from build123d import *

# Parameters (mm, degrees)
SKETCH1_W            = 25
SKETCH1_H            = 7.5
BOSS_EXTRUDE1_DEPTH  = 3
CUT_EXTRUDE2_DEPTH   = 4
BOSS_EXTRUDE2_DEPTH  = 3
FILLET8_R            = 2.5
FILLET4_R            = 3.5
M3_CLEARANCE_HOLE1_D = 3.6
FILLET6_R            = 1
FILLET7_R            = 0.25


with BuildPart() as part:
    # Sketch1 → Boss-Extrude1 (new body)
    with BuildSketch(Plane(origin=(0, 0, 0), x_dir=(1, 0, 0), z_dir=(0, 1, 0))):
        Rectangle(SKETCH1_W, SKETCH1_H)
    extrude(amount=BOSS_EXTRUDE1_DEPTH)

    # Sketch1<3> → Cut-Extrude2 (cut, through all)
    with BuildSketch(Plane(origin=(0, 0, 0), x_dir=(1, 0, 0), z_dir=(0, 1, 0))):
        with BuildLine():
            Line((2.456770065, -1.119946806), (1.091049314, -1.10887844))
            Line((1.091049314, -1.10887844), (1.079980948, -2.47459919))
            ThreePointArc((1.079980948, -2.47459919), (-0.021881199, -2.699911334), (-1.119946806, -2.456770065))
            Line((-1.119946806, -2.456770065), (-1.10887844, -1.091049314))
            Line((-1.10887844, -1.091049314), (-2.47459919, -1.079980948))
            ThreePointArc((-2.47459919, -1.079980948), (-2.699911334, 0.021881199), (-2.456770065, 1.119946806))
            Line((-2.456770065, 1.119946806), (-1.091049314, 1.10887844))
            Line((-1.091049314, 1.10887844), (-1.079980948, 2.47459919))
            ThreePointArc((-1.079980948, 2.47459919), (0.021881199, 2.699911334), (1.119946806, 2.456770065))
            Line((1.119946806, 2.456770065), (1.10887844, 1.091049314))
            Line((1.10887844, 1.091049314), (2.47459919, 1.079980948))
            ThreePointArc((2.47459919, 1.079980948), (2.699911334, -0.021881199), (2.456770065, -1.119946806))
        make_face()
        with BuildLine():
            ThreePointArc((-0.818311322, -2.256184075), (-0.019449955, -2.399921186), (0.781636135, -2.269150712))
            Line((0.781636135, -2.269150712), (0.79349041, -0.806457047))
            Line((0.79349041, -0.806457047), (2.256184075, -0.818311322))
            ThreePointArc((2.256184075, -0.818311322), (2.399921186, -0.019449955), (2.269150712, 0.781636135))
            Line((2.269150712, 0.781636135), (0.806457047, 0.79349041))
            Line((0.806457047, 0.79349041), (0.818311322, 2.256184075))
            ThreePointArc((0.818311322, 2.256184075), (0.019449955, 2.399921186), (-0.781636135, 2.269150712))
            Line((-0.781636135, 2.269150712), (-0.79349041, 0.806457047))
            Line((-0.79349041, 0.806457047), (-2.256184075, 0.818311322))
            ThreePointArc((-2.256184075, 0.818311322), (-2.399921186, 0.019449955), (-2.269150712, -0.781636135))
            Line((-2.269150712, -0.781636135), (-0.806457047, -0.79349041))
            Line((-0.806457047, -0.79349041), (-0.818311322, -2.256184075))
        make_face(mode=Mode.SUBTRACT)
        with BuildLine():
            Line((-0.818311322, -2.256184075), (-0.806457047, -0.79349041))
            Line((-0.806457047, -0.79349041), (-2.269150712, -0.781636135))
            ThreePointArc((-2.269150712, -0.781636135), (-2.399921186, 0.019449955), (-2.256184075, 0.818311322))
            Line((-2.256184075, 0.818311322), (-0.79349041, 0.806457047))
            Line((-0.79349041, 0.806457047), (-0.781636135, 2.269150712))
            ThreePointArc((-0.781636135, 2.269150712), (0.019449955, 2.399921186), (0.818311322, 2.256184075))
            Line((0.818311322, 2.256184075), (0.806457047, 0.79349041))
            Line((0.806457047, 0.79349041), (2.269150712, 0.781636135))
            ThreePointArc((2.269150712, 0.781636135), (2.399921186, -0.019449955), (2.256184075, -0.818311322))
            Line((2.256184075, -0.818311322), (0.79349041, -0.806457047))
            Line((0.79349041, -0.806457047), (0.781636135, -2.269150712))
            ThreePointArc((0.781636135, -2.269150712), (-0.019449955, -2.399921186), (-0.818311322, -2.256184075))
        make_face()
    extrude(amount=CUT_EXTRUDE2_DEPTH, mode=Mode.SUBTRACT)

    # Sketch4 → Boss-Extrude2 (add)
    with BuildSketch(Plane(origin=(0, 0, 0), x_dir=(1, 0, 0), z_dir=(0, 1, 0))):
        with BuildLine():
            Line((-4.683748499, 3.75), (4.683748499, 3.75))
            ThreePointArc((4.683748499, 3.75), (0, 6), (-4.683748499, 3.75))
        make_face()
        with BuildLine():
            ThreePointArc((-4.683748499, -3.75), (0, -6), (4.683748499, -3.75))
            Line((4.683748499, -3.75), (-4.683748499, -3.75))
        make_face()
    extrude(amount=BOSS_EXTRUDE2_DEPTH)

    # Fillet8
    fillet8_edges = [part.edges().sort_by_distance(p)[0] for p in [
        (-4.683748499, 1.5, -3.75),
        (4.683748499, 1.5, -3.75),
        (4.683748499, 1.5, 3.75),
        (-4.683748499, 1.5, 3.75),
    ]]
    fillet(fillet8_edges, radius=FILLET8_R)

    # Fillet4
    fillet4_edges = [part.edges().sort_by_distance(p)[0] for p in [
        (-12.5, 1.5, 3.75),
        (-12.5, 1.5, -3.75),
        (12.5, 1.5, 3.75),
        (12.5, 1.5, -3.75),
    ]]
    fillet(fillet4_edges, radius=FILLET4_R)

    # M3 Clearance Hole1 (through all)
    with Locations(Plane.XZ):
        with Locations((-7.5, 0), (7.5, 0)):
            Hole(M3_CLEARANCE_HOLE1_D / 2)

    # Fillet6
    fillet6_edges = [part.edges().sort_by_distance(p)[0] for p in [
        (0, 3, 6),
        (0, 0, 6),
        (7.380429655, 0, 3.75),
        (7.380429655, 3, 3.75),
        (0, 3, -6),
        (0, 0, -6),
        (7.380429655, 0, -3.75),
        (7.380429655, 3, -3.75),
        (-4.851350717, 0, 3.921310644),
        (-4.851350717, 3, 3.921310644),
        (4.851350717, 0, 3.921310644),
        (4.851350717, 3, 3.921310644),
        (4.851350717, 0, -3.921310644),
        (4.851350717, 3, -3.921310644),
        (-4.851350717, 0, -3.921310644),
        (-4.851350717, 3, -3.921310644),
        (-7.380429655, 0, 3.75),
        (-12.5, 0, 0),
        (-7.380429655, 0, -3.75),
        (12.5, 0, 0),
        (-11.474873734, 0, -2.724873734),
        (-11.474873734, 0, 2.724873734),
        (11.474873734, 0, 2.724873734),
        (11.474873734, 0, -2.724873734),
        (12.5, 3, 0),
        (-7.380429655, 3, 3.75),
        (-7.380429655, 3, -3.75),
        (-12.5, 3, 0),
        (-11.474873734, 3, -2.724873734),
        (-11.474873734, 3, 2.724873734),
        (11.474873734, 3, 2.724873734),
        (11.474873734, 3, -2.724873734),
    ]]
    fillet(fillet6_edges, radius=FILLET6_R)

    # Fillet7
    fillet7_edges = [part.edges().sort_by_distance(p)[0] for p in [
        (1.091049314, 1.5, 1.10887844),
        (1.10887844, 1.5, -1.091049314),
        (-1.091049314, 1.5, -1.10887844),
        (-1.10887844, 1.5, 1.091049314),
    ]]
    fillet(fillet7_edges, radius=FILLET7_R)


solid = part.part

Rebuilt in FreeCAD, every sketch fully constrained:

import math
import FreeCAD as App
import Part
import Sketcher


def edges_at(feature, points):
    """Names of the edges that pass closest to the given points."""
    edges = feature.Shape.Edges
    near = lambda p: min(range(len(edges)), key=lambda i: edges[i].distToShape(Part.Vertex(*p))[0])
    return sorted({f"Edge{near(p) + 1}" for p in points})


def add_polygon(sketch, points):
    """Adds a closed chain of lines whose ends are joined by coincident constraints."""
    first, n = sketch.GeometryCount, len(points)
    for a, b in zip(points, points[1:] + points[:1]):
        sketch.addGeometry(Part.LineSegment(App.Vector(*a, 0), App.Vector(*b, 0)), False)
    for i in range(n):
        sketch.addConstraint(Sketcher.Constraint("Coincident", first + i, 2, first + (i + 1) % n, 1))

doc = App.newDocument("Part")
body = doc.addObject("PartDesign::Body", "Body")

sketch1 = body.newObject("Sketcher::SketchObject", "Sketch")
sketch1.AttachmentSupport = (doc.getObject("XZ_Plane"), [""])
sketch1.MapMode = "FlatFace"
add_polygon(sketch1, [(-12.5, -3.75), (-12.5, 3.75), (12.5, 3.75), (12.5, -3.75)])
sketch1.addConstraint([
    Sketcher.Constraint("Vertical", 0),
    Sketcher.Constraint("Horizontal", 1),
    Sketcher.Constraint("Vertical", 2),
    Sketcher.Constraint("Horizontal", 3),
    Sketcher.Constraint("Symmetric", 0, 2, 2, 2, -1, 1),
    Sketcher.Constraint("DistanceX", 1, 1, 1, 2, 25.0),
    Sketcher.Constraint("DistanceY", 0, 1, 0, 2, 7.5),
])
pad1 = body.newObject("PartDesign::Pad", "Pad")
pad1.Profile = sketch1
pad1.Length = 3
pad1.Reversed = True

sketch2 = body.newObject("Sketcher::SketchObject", "Sketch001")
sketch2.AttachmentSupport = (doc.getObject("XZ_Plane"), [""])
sketch2.MapMode = "FlatFace"
sketch2.addGeometry([
    Part.LineSegment(App.Vector(1.091049, 1.108878, 0), App.Vector(2.45677, 1.119947, 0)),
    Part.ArcOfCircle(Part.Circle(App.Vector(0, 0, 0), App.Vector(0, 0, 1), 2.7), math.radians(-23.577737), math.radians(24.506414)),
    Part.LineSegment(App.Vector(2.474599, -1.079981, 0), App.Vector(1.108878, -1.091049, 0)),
    Part.LineSegment(App.Vector(1.108878, -1.091049, 0), App.Vector(1.119947, -2.45677, 0)),
    Part.ArcOfCircle(Part.Circle(App.Vector(0, 0, 0), App.Vector(0, 0, 1), 2.7), math.radians(-113.577737), math.radians(-65.493586)),
    Part.LineSegment(App.Vector(-1.079981, -2.474599, 0), App.Vector(-1.091049, -1.108878, 0)),
    Part.LineSegment(App.Vector(-1.091049, -1.108878, 0), App.Vector(-2.45677, -1.119947, 0)),
    Part.ArcOfCircle(Part.Circle(App.Vector(0, 0, 0), App.Vector(0, 0, 1), 2.7), math.radians(156.422263), math.radians(204.506414)),
    Part.LineSegment(App.Vector(-2.474599, 1.079981, 0), App.Vector(-1.108878, 1.091049, 0)),
    Part.LineSegment(App.Vector(-1.108878, 1.091049, 0), App.Vector(-1.119947, 2.45677, 0)),
    Part.ArcOfCircle(Part.Circle(App.Vector(0, 0, 0), App.Vector(0, 0, 1), 2.7), math.radians(66.422263), math.radians(114.506414)),
    Part.LineSegment(App.Vector(1.079981, 2.474599, 0), App.Vector(1.091049, 1.108878, 0)),
], False)
sketch2.addConstraint([
    Sketcher.Constraint("Coincident", 0, 2, 1, 2),
    Sketcher.Constraint("Coincident", 1, 1, 2, 1),
    Sketcher.Constraint("Coincident", 2, 2, 3, 1),
    Sketcher.Constraint("Coincident", 3, 2, 4, 2),
    Sketcher.Constraint("Coincident", 4, 1, 5, 1),
    Sketcher.Constraint("Coincident", 5, 2, 6, 1),
    Sketcher.Constraint("Coincident", 6, 2, 7, 2),
    Sketcher.Constraint("Coincident", 7, 1, 8, 1),
    Sketcher.Constraint("Coincident", 8, 2, 9, 1),
    Sketcher.Constraint("Coincident", 9, 2, 10, 2),
    Sketcher.Constraint("Coincident", 10, 1, 11, 1),
    Sketcher.Constraint("Coincident", 11, 2, 0, 1),
    Sketcher.Constraint("Coincident", 1, 3, -1, 1),
    Sketcher.Constraint("Coincident", 4, 3, -1, 1),
    Sketcher.Constraint("Coincident", 7, 3, -1, 1),
    Sketcher.Constraint("Coincident", 10, 3, -1, 1),
    Sketcher.Constraint("Equal", 1, 4),
    Sketcher.Constraint("Equal", 4, 7),
    Sketcher.Constraint("Equal", 7, 10),
    Sketcher.Constraint("Symmetric", 2, 2, 8, 2, -1, 1),
    Sketcher.Constraint("Symmetric", 5, 2, 11, 2, -1, 1),
    Sketcher.Constraint("Parallel", 0, 2),
    Sketcher.Constraint("Perpendicular", 2, 3),
    Sketcher.Constraint("Parallel", 3, 5),
    Sketcher.Constraint("Perpendicular", 5, 6),
    Sketcher.Constraint("Parallel", 6, 8),
    Sketcher.Constraint("Perpendicular", 8, 9),
    Sketcher.Constraint("Parallel", 9, 11),
    Sketcher.Constraint("Equal", 0, 2),
    Sketcher.Constraint("Equal", 2, 3),
    Sketcher.Constraint("Equal", 3, 5),
    Sketcher.Constraint("Radius", 1, 2.7),
    Sketcher.Constraint("DistanceX", -1, 1, 1, 1, 2.474599),
    Sketcher.Constraint("DistanceX", -1, 1, 0, 2, 2.45677),
])
pocket1 = body.newObject("PartDesign::Pocket", "Pocket")
pocket1.Profile = sketch2
pocket1.Type = "ThroughAll"

sketch3 = body.newObject("Sketcher::SketchObject", "Sketch002")
sketch3.AttachmentSupport = (doc.getObject("XZ_Plane"), [""])
sketch3.MapMode = "FlatFace"
sketch3.addGeometry([
    Part.LineSegment(App.Vector(-4.683748, -3.75, 0), App.Vector(4.683748, -3.75, 0)),
    Part.ArcOfCircle(Part.Circle(App.Vector(0, 0, 0), App.Vector(0, 0, 1), 6), math.radians(-141.317813), math.radians(-38.682187)),
    Part.ArcOfCircle(Part.Circle(App.Vector(0, 0, 0), App.Vector(0, 0, 1), 6), math.radians(38.682187), math.radians(141.317813)),
    Part.LineSegment(App.Vector(4.683748, 3.75, 0), App.Vector(-4.683748, 3.75, 0)),
], False)
sketch3.addConstraint([
    Sketcher.Constraint("Coincident", 0, 1, 1, 1),
    Sketcher.Constraint("Coincident", 1, 2, 0, 2),
    Sketcher.Constraint("Coincident", 2, 1, 3, 1),
    Sketcher.Constraint("Coincident", 3, 2, 2, 2),
    Sketcher.Constraint("Horizontal", 0),
    Sketcher.Constraint("Horizontal", 3),
    Sketcher.Constraint("Coincident", 1, 3, -1, 1),
    Sketcher.Constraint("Coincident", 2, 3, -1, 1),
    Sketcher.Constraint("Equal", 1, 2),
    Sketcher.Constraint("Vertical", 1, 2, 2, 1),
    Sketcher.Constraint("Radius", 1, 6.0),
    Sketcher.Constraint("DistanceY", 1, 2, 2, 1, 7.5),
])
pad2 = body.newObject("PartDesign::Pad", "Pad001")
pad2.Profile = sketch3
pad2.Length = 3
pad2.Reversed = True
doc.recompute()

fillet = body.newObject("PartDesign::Fillet", "Fillet")
fillet.Base = (pad2, edges_at(pad2, [
    (-4.684, 1.5, -3.75),
    (4.684, 1.5, -3.75),
    (4.684, 1.5, 3.75),
    (-4.684, 1.5, 3.75),
]))
fillet.Radius = 2.5
doc.recompute()

fillet2 = body.newObject("PartDesign::Fillet", "Fillet001")
fillet2.Base = (fillet, edges_at(fillet, [
    (-12.5, 1.5, 3.75),
    (-12.5, 1.5, -3.75),
    (12.5, 1.5, 3.75),
    (12.5, 1.5, -3.75),
]))
fillet2.Radius = 3.5

sketch4 = body.newObject("Sketcher::SketchObject", "Sketch003")
sketch4.AttachmentSupport = (doc.getObject("XZ_Plane"), [""])
sketch4.MapMode = "FlatFace"
sketch4.addGeometry([
    Part.Circle(App.Vector(-7.5, 0, 0), App.Vector(0, 0, 1), 1.8),
    Part.Circle(App.Vector(7.5, 0, 0), App.Vector(0, 0, 1), 1.8),
], False)
sketch4.addConstraint([
    Sketcher.Constraint("Equal", 0, 1),
    Sketcher.Constraint("Symmetric", 0, 3, 1, 3, -1, 1),
    Sketcher.Constraint("PointOnObject", 0, 3, -1),
    Sketcher.Constraint("Diameter", 0, 3.6),
    Sketcher.Constraint("DistanceX", 0, 3, 1, 3, 15.0),
])
doc.recompute()
hole = body.newObject("PartDesign::Hole", "Hole")
hole.Profile = sketch4
hole.ThreadType = "None"
hole.Diameter = 3.6
hole.DepthType = "ThroughAll"
doc.recompute()

fillet3 = body.newObject("PartDesign::Fillet", "Fillet002")
fillet3.Base = (hole, edges_at(hole, [
    (0, 3, 6),
    (0, 0, 6),
    (7.38, 0, 3.75),
    (7.38, 3, 3.75),
    (0, 3, -6),
    (0, 0, -6),
    (7.38, 0, -3.75),
    (7.38, 3, -3.75),
    (-4.851, 0, 3.921),
    (-4.851, 3, 3.921),
    (4.851, 0, 3.921),
    (4.851, 3, 3.921),
    (4.851, 0, -3.921),
    (4.851, 3, -3.921),
    (-4.851, 0, -3.921),
    (-4.851, 3, -3.921),
    (-7.38, 0, 3.75),
    (-12.5, 0, 0),
    (-7.38, 0, -3.75),
    (12.5, 0, 0),
    (-11.475, 0, -2.725),
    (-11.475, 0, 2.725),
    (11.475, 0, 2.725),
    (11.475, 0, -2.725),
    (12.5, 3, 0),
    (-7.38, 3, 3.75),
    (-7.38, 3, -3.75),
    (-12.5, 3, 0),
    (-11.475, 3, -2.725),
    (-11.475, 3, 2.725),
    (11.475, 3, 2.725),
    (11.475, 3, -2.725),
]))
fillet3.Radius = 1
doc.recompute()

fillet4 = body.newObject("PartDesign::Fillet", "Fillet003")
fillet4.Base = (fillet3, edges_at(fillet3, [
    (1.091, 1.5, 1.109),
    (1.109, 1.5, -1.091),
    (-1.091, 1.5, -1.109),
    (-1.109, 1.5, 1.091),
]))
fillet4.Radius = 0.25

doc.recompute()
